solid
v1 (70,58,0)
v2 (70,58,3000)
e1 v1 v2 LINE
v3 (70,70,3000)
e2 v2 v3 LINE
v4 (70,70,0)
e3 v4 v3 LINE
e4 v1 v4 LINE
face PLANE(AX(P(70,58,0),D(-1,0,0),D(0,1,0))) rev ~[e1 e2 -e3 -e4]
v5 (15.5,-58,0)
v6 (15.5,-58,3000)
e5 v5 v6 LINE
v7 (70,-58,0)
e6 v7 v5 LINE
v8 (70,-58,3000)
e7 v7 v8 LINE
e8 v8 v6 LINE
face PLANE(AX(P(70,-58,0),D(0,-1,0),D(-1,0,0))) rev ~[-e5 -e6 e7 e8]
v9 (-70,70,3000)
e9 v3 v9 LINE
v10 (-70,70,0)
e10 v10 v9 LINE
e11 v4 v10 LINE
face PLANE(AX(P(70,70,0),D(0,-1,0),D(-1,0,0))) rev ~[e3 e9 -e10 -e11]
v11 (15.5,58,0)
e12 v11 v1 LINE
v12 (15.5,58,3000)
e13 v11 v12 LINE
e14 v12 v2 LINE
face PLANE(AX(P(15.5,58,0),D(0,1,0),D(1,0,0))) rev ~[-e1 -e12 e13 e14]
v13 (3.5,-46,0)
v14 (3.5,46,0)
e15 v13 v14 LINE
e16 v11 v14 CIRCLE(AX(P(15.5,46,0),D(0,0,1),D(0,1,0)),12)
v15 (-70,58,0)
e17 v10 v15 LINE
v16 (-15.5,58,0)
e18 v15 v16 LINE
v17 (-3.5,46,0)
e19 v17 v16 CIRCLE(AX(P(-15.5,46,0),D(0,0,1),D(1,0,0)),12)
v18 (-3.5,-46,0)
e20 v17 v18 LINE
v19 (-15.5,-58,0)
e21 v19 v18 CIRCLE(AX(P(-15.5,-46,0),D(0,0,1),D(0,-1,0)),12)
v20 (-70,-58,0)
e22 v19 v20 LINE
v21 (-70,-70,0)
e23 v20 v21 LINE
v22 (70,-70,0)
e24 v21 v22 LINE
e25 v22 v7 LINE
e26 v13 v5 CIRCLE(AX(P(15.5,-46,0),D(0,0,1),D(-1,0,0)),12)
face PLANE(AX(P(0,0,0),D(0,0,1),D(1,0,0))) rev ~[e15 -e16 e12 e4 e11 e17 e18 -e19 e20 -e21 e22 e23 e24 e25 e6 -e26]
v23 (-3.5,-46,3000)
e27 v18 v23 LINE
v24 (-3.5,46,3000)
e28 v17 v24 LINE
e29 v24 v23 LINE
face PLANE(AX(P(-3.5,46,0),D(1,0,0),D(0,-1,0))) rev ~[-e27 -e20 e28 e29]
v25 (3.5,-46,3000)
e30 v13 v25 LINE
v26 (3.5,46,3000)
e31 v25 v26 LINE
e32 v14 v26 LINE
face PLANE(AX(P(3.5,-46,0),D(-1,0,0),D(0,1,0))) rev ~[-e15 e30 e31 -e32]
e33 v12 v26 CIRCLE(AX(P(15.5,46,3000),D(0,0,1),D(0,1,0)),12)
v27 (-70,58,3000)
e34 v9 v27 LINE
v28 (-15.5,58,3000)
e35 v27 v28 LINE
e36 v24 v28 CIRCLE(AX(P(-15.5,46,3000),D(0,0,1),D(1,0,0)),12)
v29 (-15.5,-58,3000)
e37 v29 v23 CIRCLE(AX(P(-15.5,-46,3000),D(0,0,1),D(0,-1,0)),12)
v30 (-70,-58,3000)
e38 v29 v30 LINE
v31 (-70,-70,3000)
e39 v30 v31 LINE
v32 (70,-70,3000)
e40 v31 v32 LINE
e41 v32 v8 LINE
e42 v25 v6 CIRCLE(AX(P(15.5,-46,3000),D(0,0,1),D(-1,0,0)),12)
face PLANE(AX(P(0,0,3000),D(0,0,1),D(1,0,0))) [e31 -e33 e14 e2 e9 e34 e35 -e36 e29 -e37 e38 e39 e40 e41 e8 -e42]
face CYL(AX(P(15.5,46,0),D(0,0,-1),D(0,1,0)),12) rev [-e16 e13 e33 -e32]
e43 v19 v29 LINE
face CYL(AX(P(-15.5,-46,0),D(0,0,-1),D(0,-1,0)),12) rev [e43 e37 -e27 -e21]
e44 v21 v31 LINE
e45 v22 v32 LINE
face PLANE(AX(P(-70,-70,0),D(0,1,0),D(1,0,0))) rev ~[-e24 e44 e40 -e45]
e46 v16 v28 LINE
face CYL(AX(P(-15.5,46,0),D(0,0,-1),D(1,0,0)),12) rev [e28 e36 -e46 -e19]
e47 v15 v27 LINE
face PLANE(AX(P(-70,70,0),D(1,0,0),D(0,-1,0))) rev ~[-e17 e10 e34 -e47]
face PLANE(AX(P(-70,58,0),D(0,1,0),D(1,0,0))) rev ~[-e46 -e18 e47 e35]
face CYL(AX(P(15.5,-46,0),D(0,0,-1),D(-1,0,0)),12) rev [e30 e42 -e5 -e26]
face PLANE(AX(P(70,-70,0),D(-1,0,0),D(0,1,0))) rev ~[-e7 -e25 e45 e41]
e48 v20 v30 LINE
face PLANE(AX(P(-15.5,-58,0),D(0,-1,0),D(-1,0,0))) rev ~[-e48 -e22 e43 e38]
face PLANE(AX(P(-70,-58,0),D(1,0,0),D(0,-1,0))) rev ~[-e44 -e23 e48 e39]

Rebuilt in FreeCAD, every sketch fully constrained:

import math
import FreeCAD as App
import Part
import Sketcher
from FreeCAD import Vector

doc = App.newDocument("Part")
params = doc.addObject("Spreadsheet::Sheet", "Params")
for row, (alias, value) in enumerate([
    ("sketch1_radius", "12 mm"),
    ("sketch1_width", "140 mm"),
    ("sketch1_height", "12 mm"),
    ("pad1_length", "3000 mm"),
], start=1):
    params.set(f"A{row}", alias)
    params.set(f"B{row}", "=" + value)
    params.setAlias(f"B{row}", alias)

body = doc.addObject("PartDesign::Body", "Body")

sketch1 = body.newObject("Sketcher::SketchObject", "Sketch")
sketch1.AttachmentSupport = (doc.getObject("XY_Plane"), [""])
sketch1.MapMode = "FlatFace"
sketch1.addGeometry([
    Part.LineSegment(Vector(-70, 70, 0), Vector(-70, 58, 0)),
    Part.LineSegment(Vector(-70, 58, 0), Vector(-16, 58, 0)),
    Part.ArcOfCircle(Part.Circle(Vector(-16, 46, 0), Vector(0, 0, 1), 12), math.radians(0), math.radians(90)),
    Part.LineSegment(Vector(-4, 46, 0), Vector(-4, -46, 0)),
    Part.ArcOfCircle(Part.Circle(Vector(-16, -46, 0), Vector(0, 0, 1), 12), math.radians(-90), math.radians(0)),
    Part.LineSegment(Vector(-16, -58, 0), Vector(-70, -58, 0)),
    Part.LineSegment(Vector(-70, -58, 0), Vector(-70, -70, 0)),
    Part.LineSegment(Vector(-70, -70, 0), Vector(70, -70, 0)),
    Part.LineSegment(Vector(70, -70, 0), Vector(70, -58, 0)),
    Part.LineSegment(Vector(70, -58, 0), Vector(16, -58, 0)),
    Part.ArcOfCircle(Part.Circle(Vector(16, -46, 0), Vector(0, 0, 1), 12), math.radians(180), math.radians(270)),
    Part.LineSegment(Vector(4, -46, 0), Vector(4, 46, 0)),
    Part.ArcOfCircle(Part.Circle(Vector(16, 46, 0), Vector(0, 0, 1), 12), math.radians(90), math.radians(180)),
    Part.LineSegment(Vector(16, 58, 0), Vector(70, 58, 0)),
    Part.LineSegment(Vector(70, 58, 0), Vector(70, 70, 0)),
    Part.LineSegment(Vector(70, 70, 0), Vector(-70, 70, 0)),
], False)
sketch1.addConstraint([
    Sketcher.Constraint("Coincident", 0, 2, 1, 1),
    Sketcher.Constraint("Tangent", 1, 2, 2, 2),
    Sketcher.Constraint("Tangent", 2, 1, 3, 1),
    Sketcher.Constraint("Tangent", 3, 2, 4, 2),
    Sketcher.Constraint("Tangent", 4, 1, 5, 1),
    Sketcher.Constraint("Coincident", 5, 2, 6, 1),
    Sketcher.Constraint("Coincident", 6, 2, 7, 1),
    Sketcher.Constraint("Coincident", 7, 2, 8, 1),
    Sketcher.Constraint("Coincident", 8, 2, 9, 1),
    Sketcher.Constraint("Tangent", 9, 2, 10, 2),
    Sketcher.Constraint("Tangent", 10, 1, 11, 1),
    Sketcher.Constraint("Tangent", 11, 2, 12, 2),
    Sketcher.Constraint("Tangent", 12, 1, 13, 1),
    Sketcher.Constraint("Coincident", 13, 2, 14, 1),
    Sketcher.Constraint("Coincident", 14, 2, 15, 1),
    Sketcher.Constraint("Coincident", 15, 2, 0, 1),
    Sketcher.Constraint("Vertical", 0),
    Sketcher.Constraint("Horizontal", 1),
    Sketcher.Constraint("Vertical", 3),
    Sketcher.Constraint("Horizontal", 5),
    Sketcher.Constraint("Vertical", 6),
    Sketcher.Constraint("Horizontal", 7),
    Sketcher.Constraint("Vertical", 8),
    Sketcher.Constraint("Horizontal", 9),
    Sketcher.Constraint("Vertical", 11),
    Sketcher.Constraint("Horizontal", 13),
    Sketcher.Constraint("Vertical", 14),
    Sketcher.Constraint("Horizontal", 15),
    Sketcher.Constraint("Equal", 2, 4),
    Sketcher.Constraint("Equal", 4, 10),
    Sketcher.Constraint("Equal", 10, 12),
    Sketcher.Constraint("Symmetric", 2, 3, 10, 3, -1, 1),
    Sketcher.Constraint("Symmetric", 5, 2, 13, 2, -1, 1),
    Sketcher.Constraint("Symmetric", 7, 2, 15, 2, -1, 1),
    Sketcher.Constraint("Symmetric", 5, 2, 8, 2, -2),
    Sketcher.Constraint("Radius", 2, 12.0),
    Sketcher.Constraint("DistanceX", 7, 1, 7, 2, 140.0),
    Sketcher.Constraint("DistanceY", 0, 2, 0, 1, 12.0),
    Sketcher.Constraint("DistanceY", 6, 2, -1, 1, 70.0),
    Sketcher.Constraint("DistanceX", 3, 2, 10, 1, 7.0),
])
sketch1.setExpression("Constraints[35]", "Params.sketch1_radius")
sketch1.setExpression("Constraints[36]", "Params.sketch1_width")
sketch1.setExpression("Constraints[37]", "Params.sketch1_height")
pad1 = body.newObject("PartDesign::Pad", "Pad")
pad1.Profile = sketch1
pad1.setExpression("Length", "Params.pad1_length")

doc.recompute()
